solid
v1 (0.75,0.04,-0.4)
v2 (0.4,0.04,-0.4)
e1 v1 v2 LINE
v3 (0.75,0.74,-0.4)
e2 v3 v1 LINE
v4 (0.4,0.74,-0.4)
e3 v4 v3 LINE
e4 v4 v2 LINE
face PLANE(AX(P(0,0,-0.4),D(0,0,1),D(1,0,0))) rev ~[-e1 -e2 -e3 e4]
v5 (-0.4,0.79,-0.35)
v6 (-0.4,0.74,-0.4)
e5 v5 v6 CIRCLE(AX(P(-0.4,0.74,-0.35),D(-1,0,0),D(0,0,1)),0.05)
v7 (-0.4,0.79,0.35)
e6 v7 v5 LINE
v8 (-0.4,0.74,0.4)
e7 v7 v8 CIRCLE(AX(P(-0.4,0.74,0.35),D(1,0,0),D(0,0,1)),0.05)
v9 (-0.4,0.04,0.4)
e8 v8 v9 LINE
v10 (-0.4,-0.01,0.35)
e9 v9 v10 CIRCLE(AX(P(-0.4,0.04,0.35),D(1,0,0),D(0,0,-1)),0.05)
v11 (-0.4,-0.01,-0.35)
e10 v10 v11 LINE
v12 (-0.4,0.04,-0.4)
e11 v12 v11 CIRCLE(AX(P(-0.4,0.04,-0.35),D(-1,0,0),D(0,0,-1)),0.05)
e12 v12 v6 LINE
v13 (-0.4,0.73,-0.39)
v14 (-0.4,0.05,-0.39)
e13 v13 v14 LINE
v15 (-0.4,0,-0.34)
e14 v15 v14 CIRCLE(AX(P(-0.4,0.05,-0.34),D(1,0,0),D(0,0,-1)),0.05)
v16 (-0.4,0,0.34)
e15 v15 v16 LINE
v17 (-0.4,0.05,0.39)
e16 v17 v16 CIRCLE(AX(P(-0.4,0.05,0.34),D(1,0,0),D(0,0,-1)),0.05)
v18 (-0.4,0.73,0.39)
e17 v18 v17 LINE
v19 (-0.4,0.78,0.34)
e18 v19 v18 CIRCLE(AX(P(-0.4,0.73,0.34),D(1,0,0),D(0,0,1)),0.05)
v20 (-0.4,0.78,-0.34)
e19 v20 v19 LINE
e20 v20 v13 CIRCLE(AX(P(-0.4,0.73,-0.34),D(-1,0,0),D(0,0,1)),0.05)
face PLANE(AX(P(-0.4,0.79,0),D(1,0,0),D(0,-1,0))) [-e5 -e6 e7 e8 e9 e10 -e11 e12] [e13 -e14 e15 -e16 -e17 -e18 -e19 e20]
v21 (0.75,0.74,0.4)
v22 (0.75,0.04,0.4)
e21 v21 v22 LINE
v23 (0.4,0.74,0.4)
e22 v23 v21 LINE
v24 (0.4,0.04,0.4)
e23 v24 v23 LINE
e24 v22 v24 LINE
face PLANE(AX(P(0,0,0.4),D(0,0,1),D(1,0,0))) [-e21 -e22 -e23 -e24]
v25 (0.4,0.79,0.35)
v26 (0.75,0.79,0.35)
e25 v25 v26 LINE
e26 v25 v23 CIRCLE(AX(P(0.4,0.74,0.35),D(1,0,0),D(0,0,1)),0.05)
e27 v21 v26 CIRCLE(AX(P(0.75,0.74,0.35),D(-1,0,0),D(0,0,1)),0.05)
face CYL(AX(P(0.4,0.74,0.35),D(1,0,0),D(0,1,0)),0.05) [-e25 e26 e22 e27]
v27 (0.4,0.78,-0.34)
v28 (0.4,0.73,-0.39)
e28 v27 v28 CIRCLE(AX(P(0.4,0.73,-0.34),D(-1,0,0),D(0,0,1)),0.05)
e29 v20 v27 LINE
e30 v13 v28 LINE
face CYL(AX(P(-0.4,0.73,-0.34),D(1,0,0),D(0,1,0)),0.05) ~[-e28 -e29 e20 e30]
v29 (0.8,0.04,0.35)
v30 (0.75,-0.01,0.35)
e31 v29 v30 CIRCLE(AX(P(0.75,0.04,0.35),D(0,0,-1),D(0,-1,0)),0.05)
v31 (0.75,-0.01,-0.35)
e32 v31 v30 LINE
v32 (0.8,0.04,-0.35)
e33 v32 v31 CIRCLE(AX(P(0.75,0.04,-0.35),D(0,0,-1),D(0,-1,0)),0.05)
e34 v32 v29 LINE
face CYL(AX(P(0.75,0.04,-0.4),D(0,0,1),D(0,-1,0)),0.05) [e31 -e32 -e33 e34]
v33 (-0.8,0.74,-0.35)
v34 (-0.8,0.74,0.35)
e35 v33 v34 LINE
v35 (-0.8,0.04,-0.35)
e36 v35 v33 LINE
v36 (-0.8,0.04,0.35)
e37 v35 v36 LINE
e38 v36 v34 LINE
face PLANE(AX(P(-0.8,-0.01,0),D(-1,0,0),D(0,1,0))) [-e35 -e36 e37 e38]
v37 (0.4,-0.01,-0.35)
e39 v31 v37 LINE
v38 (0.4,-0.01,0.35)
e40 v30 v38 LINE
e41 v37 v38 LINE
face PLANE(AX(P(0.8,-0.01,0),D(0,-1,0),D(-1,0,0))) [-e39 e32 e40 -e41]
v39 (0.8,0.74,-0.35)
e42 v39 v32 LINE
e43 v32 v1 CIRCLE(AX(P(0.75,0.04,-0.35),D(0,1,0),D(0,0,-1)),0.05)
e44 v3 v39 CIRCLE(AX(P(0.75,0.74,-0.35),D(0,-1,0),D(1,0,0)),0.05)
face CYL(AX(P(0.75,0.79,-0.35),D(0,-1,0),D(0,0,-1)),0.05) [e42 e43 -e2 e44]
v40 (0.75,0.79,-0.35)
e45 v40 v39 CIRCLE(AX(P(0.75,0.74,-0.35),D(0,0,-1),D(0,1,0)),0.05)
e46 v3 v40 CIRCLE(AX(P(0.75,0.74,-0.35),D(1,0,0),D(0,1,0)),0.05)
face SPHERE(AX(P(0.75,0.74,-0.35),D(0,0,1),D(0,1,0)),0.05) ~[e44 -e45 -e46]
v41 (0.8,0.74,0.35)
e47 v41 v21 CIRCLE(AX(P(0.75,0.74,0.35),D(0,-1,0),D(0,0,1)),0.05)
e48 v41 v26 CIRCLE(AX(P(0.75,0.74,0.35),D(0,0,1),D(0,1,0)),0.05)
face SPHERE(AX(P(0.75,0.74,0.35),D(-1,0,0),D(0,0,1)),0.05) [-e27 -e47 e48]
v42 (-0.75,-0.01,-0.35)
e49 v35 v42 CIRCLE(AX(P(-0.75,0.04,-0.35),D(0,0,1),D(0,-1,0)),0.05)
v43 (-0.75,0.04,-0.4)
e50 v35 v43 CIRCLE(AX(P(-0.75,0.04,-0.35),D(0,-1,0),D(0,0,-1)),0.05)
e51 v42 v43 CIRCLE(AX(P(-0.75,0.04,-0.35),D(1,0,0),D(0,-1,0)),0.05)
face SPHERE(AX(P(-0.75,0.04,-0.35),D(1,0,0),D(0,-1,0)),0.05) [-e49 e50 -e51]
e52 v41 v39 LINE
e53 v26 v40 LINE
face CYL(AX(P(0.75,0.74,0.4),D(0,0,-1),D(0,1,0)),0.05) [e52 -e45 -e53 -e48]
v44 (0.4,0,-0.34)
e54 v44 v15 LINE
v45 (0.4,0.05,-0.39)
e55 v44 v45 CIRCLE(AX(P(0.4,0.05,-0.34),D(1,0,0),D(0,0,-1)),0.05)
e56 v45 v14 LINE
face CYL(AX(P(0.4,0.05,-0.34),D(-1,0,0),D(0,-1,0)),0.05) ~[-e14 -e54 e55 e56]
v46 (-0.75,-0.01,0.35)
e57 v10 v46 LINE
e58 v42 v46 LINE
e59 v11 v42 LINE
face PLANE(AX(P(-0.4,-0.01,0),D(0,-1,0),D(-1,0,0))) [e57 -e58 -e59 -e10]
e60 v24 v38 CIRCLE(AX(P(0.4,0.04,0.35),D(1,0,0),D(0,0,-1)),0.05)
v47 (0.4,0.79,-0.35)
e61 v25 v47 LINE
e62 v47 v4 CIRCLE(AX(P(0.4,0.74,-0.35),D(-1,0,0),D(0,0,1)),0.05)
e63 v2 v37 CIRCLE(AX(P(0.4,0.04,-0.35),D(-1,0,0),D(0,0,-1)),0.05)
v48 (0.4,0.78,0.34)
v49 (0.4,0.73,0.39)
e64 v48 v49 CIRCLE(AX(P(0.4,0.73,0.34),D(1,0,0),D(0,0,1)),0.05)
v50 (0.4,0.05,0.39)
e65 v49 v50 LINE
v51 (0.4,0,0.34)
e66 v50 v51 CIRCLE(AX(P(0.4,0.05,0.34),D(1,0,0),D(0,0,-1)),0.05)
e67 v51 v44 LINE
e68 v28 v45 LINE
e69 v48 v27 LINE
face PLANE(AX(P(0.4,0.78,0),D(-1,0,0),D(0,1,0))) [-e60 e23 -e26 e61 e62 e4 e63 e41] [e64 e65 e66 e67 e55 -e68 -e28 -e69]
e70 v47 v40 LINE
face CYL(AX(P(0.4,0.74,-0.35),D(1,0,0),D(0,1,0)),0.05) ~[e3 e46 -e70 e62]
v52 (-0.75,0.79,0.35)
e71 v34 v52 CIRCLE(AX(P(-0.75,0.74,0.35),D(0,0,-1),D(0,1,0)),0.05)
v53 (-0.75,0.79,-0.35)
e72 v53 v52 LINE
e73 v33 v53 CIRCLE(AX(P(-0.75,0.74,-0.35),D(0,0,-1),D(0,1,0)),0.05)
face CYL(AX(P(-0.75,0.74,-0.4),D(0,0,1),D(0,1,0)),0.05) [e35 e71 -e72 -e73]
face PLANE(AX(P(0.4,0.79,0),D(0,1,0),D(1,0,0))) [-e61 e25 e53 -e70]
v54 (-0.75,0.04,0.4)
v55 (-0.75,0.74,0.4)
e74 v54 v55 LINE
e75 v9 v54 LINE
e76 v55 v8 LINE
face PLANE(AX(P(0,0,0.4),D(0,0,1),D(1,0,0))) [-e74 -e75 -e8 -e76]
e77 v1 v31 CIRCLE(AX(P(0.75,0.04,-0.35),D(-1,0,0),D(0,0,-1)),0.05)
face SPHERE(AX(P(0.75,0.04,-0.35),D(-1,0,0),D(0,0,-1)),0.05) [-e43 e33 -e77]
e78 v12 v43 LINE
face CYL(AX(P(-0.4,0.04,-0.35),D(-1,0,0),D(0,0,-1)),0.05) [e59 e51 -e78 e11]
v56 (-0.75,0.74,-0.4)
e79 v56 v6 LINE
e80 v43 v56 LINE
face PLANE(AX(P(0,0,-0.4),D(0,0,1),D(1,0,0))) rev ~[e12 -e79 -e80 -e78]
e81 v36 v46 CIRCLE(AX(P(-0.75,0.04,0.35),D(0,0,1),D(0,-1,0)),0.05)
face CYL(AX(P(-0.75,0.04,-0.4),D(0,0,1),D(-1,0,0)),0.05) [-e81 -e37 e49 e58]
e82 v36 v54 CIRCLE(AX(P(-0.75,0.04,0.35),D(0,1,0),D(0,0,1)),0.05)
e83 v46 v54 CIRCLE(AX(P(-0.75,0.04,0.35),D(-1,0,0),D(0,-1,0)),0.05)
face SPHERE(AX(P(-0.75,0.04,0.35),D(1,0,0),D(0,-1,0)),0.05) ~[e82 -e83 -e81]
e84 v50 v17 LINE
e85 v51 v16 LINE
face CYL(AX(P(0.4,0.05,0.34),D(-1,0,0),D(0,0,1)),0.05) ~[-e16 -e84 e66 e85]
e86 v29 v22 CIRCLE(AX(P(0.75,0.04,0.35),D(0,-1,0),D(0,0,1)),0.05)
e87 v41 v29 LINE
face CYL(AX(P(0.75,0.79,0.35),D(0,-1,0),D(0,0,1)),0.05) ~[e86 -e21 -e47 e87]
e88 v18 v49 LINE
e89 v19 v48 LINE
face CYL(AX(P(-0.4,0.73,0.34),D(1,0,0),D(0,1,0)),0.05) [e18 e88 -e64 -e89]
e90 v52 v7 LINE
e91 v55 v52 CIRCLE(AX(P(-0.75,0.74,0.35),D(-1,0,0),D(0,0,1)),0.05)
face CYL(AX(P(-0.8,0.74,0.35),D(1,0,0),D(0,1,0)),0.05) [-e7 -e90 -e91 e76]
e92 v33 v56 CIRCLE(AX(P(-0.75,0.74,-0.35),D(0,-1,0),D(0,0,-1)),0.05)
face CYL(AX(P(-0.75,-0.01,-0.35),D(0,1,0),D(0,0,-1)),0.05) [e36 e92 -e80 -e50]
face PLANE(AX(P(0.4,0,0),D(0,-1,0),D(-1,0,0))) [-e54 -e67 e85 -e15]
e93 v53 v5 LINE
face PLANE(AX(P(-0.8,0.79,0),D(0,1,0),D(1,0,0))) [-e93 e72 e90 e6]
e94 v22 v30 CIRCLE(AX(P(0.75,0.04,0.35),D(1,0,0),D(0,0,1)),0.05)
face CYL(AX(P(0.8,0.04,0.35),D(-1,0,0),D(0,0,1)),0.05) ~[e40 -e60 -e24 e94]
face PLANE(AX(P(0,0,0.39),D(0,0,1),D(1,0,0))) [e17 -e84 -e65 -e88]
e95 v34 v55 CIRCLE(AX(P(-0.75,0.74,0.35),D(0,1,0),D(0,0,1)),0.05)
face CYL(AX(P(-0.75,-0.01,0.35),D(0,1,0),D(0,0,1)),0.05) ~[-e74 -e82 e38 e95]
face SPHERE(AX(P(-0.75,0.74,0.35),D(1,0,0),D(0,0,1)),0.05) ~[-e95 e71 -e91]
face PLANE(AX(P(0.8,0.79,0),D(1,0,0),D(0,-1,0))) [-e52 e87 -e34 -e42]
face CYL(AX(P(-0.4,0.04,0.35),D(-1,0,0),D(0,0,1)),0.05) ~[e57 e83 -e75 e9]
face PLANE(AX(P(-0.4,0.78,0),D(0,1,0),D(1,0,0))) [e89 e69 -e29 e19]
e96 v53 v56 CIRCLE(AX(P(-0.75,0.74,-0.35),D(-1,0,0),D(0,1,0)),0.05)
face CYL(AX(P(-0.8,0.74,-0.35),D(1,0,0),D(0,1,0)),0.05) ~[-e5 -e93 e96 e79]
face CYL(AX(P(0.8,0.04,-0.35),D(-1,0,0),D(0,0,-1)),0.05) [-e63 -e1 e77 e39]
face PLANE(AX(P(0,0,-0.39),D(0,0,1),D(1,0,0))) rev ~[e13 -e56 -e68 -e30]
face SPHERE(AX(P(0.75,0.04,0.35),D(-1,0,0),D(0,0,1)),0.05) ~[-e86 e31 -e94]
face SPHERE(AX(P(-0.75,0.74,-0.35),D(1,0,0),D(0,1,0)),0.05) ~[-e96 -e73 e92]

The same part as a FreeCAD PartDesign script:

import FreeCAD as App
import Part
import Sketcher

V = App.Vector
Q = App.Units.Quantity


def edges_at(feature, points):
    """Names of the edges that pass closest to the given points."""
    edges = feature.Shape.Edges
    near = lambda p: min(range(len(edges)), key=lambda i: edges[i].distToShape(Part.Vertex(*p))[0])
    return sorted({f"Edge{near(p) + 1}" for p in points})


def add_polygon(sketch, points):
    """Adds a closed chain of lines whose ends are joined by coincident constraints."""
    first, n = sketch.GeometryCount, len(points)
    for a, b in zip(points, points[1:] + points[:1]):
        sketch.addGeometry(Part.LineSegment(App.Vector(*a, 0), App.Vector(*b, 0)), False)
    for i in range(n):
        sketch.addConstraint(Sketcher.Constraint("Coincident", first + i, 2, first + (i + 1) % n, 1))

doc = App.newDocument("Part")
body = doc.addObject("PartDesign::Body", "Body")
body.AllowCompound = True

# Sketch on XY plane
sketch1 = doc.addObject("Sketcher::SketchObject", "Sketch")
body.addObject(sketch1)
sketch1.AttachmentSupport = (doc.XY_Plane, [""])
sketch1.MapMode = "FlatFace"
add_polygon(sketch1, [(-0.4, 0.79), (-0.8, 0.79), (-0.8, -0.01), (-0.4, -0.01)])  # lines 0-3
add_polygon(sketch1, [(0.4, 0.79), (0.4, -0.01), (0.8, -0.01), (0.8, 0.79)])  # lines 4-7
sketch1.addConstraint(Sketcher.Constraint("Horizontal", 0))
sketch1.addConstraint(Sketcher.Constraint("Vertical", 1))
sketch1.addConstraint(Sketcher.Constraint("Horizontal", 2))
sketch1.addConstraint(Sketcher.Constraint("Vertical", 3))
sketch1.addConstraint(Sketcher.Constraint("Vertical", 4))
sketch1.addConstraint(Sketcher.Constraint("Horizontal", 5))
sketch1.addConstraint(Sketcher.Constraint("Vertical", 6))
sketch1.addConstraint(Sketcher.Constraint("Horizontal", 7))
sketch1.addConstraint(Sketcher.Constraint("Symmetric", 2, 2, 4, 2, -2))
sketch1.addConstraint(Sketcher.Constraint("Symmetric", 0, 2, 6, 2, -2))
sketch1.addConstraint(Sketcher.Constraint("DistanceX", 0, 2, 0, 1, Q("0.4 mm")))
sketch1.addConstraint(Sketcher.Constraint("DistanceY", 1, 2, 1, 1, Q("0.8 mm")))
sketch1.addConstraint(Sketcher.Constraint("DistanceX", 0, 2, -1, 1, Q("0.8 mm")))
sketch1.addConstraint(Sketcher.Constraint("DistanceY", 1, 2, -1, 1, Q("0.01 mm")))
pad1 = doc.addObject("PartDesign::Pad", "Pad")
body.addObject(pad1)
pad1.Profile = sketch1
pad1.Length = 0.8
pad1.Midplane = True

# Sketch on XY plane
sketch2 = doc.addObject("Sketcher::SketchObject", "Sketch001")
body.addObject(sketch2)
sketch2.AttachmentSupport = (doc.XY_Plane, [""])
sketch2.MapMode = "FlatFace"
add_polygon(sketch2, [(0.4, 0.8), (-0.4, 0.8), (-0.4, 0), (0.4, 0)])  # lines 0-3
sketch2.addConstraint(Sketcher.Constraint("Horizontal", 0))
sketch2.addConstraint(Sketcher.Constraint("Vertical", 1))
sketch2.addConstraint(Sketcher.Constraint("Horizontal", 2))
sketch2.addConstraint(Sketcher.Constraint("Vertical", 3))
sketch2.addConstraint(Sketcher.Constraint("Symmetric", 1, 2, 2, 2, -1, 1))
sketch2.addConstraint(Sketcher.Constraint("DistanceX", 0, 2, 0, 1, Q("0.8 mm")))
sketch2.addConstraint(Sketcher.Constraint("DistanceY", 1, 2, 1, 1, Q("0.78 mm")))
pad2 = doc.addObject("PartDesign::Pad", "Pad001")
body.addObject(pad2)
pad2.Profile = sketch2
pad2.Length = 0.78
pad2.Midplane = True
doc.recompute()

fillet = doc.addObject("PartDesign::Fillet", "Fillet")
body.addObject(fillet)
fillet.Base = (pad2, edges_at(pad2, [
    (-0.6, 0.79, 0.4),
    (-0.6, 0.79, -0.4),
    (0, 0.78, -0.39),
    (0, 0.78, 0.39),
    (-0.6, -0.01, 0.4),
    (0, 0, 0.39),
    (0, 0, -0.39),
    (-0.6, -0.01, -0.4),
    (0.6, -0.01, -0.4),
    (0.6, -0.01, 0.4),
    (0.6, 0.79, 0.4),
    (0.8, 0.39, 0.4),
    (0.8, 0.79, 0),
    (0.6, 0.79, -0.4),
    (0.8, 0.39, -0.4),
    (0.8, -0.01, 0),
    (-0.8, -0.01, 0),
    (-0.8, 0.39, 0.4),
    (-0.8, 0.79, 0),
    (-0.8, 0.39, -0.4),
]))
fillet.Radius = 0.05

doc.recompute()
